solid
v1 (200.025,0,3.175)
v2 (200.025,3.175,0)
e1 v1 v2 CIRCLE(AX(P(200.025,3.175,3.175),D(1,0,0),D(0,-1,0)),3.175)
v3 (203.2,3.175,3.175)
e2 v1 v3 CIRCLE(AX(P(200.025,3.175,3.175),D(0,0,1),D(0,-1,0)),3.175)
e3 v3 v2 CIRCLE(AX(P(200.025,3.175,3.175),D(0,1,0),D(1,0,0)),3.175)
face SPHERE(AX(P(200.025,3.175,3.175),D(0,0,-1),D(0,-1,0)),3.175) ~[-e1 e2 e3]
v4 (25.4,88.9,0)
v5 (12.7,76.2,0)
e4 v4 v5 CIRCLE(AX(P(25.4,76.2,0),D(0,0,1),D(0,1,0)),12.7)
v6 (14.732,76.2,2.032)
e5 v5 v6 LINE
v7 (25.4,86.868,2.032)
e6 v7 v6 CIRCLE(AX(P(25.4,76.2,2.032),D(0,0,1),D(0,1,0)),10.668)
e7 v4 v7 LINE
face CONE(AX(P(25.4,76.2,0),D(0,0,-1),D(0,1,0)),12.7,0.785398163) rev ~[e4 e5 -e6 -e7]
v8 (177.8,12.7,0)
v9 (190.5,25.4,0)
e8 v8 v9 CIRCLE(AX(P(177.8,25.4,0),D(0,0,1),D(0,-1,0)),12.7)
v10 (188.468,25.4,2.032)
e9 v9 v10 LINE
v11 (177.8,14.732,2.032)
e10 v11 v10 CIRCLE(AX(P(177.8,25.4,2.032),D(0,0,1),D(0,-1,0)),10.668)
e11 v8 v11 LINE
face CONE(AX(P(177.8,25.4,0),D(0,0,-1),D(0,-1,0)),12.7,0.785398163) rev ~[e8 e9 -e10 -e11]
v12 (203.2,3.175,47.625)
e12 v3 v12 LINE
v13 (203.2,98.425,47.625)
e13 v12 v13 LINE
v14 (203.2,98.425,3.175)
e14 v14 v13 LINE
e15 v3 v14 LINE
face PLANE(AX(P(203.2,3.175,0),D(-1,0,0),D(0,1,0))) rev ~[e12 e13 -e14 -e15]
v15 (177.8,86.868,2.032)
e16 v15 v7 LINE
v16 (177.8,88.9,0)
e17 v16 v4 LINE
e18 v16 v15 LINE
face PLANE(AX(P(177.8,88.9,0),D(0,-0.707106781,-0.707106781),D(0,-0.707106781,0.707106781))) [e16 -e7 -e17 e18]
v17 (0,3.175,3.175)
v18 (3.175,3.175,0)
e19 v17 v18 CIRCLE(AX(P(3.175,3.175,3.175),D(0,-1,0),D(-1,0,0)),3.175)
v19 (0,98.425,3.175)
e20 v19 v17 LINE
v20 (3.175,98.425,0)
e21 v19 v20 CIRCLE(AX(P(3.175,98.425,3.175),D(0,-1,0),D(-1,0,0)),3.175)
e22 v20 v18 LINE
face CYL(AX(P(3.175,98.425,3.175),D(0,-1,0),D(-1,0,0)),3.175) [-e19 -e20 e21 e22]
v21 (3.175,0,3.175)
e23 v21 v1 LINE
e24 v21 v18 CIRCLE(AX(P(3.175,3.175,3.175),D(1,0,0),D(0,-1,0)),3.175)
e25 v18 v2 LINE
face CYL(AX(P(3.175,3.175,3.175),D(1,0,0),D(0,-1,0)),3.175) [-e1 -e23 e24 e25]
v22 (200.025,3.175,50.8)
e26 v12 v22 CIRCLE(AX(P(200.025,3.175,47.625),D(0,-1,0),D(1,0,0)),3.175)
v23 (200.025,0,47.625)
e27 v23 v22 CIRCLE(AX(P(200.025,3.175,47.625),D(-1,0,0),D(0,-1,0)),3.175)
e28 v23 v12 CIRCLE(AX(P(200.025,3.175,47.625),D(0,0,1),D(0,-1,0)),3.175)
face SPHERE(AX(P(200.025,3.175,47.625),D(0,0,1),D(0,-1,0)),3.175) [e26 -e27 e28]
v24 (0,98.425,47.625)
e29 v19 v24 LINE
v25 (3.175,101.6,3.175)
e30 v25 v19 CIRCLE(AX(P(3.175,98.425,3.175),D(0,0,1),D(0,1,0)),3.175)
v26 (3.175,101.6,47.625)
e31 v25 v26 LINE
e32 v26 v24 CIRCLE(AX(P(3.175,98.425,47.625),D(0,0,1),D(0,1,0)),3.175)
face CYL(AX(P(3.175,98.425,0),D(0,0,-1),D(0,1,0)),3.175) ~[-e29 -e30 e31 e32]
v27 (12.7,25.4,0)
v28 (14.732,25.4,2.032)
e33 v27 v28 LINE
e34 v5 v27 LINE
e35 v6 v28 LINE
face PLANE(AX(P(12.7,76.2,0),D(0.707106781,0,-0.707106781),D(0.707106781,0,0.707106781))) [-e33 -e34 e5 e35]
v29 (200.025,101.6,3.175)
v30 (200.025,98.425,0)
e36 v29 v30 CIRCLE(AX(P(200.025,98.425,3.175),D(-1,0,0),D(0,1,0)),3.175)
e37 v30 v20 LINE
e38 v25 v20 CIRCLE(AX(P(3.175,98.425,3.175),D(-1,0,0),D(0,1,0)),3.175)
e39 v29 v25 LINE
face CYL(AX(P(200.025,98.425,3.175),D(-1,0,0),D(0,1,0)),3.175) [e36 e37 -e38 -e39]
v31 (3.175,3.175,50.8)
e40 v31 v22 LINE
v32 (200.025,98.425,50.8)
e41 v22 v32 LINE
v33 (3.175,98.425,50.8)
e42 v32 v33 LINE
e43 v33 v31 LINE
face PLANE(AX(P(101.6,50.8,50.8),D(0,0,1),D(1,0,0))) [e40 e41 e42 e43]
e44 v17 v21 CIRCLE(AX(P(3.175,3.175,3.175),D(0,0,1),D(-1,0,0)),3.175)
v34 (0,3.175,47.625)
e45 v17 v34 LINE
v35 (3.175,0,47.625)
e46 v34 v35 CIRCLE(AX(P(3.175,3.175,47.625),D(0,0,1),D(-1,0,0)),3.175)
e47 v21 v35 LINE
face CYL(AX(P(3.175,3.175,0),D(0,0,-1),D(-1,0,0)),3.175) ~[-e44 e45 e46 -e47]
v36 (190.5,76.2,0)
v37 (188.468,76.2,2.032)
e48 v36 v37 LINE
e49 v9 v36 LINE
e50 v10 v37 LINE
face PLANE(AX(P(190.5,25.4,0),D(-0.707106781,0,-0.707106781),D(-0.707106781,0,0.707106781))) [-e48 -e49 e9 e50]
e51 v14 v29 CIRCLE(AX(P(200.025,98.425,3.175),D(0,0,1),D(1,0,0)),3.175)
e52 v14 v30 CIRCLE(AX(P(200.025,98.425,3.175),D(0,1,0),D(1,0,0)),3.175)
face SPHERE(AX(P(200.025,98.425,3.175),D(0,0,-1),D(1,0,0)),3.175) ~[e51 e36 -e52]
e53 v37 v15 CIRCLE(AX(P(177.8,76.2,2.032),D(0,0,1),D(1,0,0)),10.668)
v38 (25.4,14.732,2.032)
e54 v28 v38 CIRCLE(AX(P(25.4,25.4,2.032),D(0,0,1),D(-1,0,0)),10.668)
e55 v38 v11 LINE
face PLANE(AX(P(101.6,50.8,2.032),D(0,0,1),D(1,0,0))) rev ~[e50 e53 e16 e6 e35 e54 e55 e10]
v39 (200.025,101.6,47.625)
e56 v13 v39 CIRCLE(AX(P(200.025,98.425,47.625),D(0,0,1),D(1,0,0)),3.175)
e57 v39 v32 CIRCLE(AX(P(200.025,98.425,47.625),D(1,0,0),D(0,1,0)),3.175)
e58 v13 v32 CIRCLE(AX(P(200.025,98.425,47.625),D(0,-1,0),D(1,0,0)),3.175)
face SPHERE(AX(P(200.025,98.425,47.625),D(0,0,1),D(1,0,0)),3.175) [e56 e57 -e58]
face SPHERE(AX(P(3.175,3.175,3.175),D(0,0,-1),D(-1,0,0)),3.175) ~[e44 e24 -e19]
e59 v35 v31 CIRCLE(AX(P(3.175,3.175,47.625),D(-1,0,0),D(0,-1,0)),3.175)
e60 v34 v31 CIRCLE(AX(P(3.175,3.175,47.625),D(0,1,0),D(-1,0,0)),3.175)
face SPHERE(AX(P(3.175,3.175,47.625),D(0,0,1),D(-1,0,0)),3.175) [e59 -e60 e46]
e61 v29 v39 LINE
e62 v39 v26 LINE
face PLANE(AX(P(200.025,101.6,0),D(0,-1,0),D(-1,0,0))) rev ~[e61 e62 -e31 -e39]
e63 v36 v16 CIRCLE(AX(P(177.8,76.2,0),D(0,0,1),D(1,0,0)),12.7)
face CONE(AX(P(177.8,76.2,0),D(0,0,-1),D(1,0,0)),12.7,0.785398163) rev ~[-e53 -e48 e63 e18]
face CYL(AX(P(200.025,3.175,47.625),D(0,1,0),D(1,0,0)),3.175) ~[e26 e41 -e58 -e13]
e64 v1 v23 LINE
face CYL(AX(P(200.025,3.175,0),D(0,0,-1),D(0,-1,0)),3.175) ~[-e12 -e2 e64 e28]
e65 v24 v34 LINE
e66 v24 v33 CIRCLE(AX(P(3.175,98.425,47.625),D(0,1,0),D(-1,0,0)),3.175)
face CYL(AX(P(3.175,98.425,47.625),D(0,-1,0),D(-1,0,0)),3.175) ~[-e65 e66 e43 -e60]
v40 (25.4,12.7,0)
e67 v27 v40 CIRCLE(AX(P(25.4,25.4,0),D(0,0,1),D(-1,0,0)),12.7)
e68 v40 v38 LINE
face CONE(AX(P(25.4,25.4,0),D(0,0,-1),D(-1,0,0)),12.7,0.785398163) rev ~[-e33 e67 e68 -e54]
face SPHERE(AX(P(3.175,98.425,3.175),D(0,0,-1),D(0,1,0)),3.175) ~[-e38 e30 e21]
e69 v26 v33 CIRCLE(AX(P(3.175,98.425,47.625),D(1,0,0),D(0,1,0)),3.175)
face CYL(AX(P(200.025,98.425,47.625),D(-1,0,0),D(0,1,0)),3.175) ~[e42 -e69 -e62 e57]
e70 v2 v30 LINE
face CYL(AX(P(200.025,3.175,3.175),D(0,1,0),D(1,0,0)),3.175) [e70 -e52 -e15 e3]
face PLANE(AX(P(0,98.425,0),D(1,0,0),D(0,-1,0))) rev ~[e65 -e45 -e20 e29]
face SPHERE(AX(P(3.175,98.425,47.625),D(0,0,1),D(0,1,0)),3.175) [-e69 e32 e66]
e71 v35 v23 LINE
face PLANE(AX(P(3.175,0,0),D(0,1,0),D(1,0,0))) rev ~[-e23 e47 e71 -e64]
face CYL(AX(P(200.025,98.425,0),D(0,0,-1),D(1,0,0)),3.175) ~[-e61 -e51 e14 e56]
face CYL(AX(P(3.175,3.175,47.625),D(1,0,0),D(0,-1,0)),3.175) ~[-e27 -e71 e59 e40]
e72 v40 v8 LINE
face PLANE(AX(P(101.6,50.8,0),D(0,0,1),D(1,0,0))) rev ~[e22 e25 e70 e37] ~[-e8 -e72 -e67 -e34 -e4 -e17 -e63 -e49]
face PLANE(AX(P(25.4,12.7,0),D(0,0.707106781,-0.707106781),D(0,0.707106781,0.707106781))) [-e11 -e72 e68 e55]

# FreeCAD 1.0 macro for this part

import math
import FreeCAD as App
import Part
import Sketcher
Q = App.Units.Quantity


def edges_at(feature, points):
    """Names of the edges that pass closest to the given points."""
    edges = feature.Shape.Edges
    near = lambda p: min(range(len(edges)), key=lambda i: edges[i].distToShape(Part.Vertex(*p))[0])
    return sorted({f"Edge{near(p) + 1}" for p in points})

doc = App.newDocument("Part")
body = doc.addObject("PartDesign::Body", "Body")

# Sketch on XY plane
sketch1 = body.newObject("Sketcher::SketchObject", "Sketch")
sketch1.AttachmentSupport = (doc.getObject("XY_Plane"), [""])
sketch1.MapMode = "FlatFace"
sketch1.addGeometry([
    Part.ArcOfCircle(Part.Circle(App.Vector(3.175, 3.175, 0), App.Vector(0, 0, 1), 3.175), math.radians(180), math.radians(270)),  # 0
    Part.LineSegment(App.Vector(3.175, 0, 0), App.Vector(200.025, 0, 0)),  # 1
    Part.ArcOfCircle(Part.Circle(App.Vector(200.025, 3.175, 0), App.Vector(0, 0, 1), 3.175), math.radians(-90), math.radians(0)),  # 2
    Part.LineSegment(App.Vector(203.2, 3.175, 0), App.Vector(203.2, 98.425, 0)),  # 3
    Part.ArcOfCircle(Part.Circle(App.Vector(200.025, 98.425, 0), App.Vector(0, 0, 1), 3.175), math.radians(0), math.radians(90)),  # 4
    Part.LineSegment(App.Vector(200.025, 101.6, 0), App.Vector(3.175, 101.6, 0)),  # 5
    Part.ArcOfCircle(Part.Circle(App.Vector(3.175, 98.425, 0), App.Vector(0, 0, 1), 3.175), math.radians(90), math.radians(180)),  # 6
    Part.LineSegment(App.Vector(0, 98.425, 0), App.Vector(0, 3.175, 0)),  # 7
], False)
sketch1.addConstraint([
    Sketcher.Constraint("Tangent", 0, 2, 1, 1),
    Sketcher.Constraint("Tangent", 1, 2, 2, 1),
    Sketcher.Constraint("Tangent", 2, 2, 3, 1),
    Sketcher.Constraint("Tangent", 3, 2, 4, 1),
    Sketcher.Constraint("Tangent", 4, 2, 5, 1),
    Sketcher.Constraint("Tangent", 5, 2, 6, 1),
    Sketcher.Constraint("Tangent", 6, 2, 7, 1),
    Sketcher.Constraint("Tangent", 7, 2, 0, 1),
    Sketcher.Constraint("Horizontal", 1),
    Sketcher.Constraint("Vertical", 3),
    Sketcher.Constraint("Horizontal", 5),
    Sketcher.Constraint("Vertical", 7),
    Sketcher.Constraint("Equal", 0, 2),
    Sketcher.Constraint("Equal", 2, 4),
    Sketcher.Constraint("Equal", 4, 6),
    Sketcher.Constraint("PointOnObject", 0, 2, -1),
    Sketcher.Constraint("PointOnObject", 6, 2, -2),
    Sketcher.Constraint("DistanceX", -1, 1, 2, 2, Q("8 in")),
    Sketcher.Constraint("DistanceY", -1, 1, 4, 2, Q("4 in")),
    Sketcher.Constraint("Radius", 0, Q("0.125 in")),
])
pad1 = body.newObject("PartDesign::Pad", "Pad")
pad1.Profile = sketch1
pad1.Length = Q("2 in")
doc.recompute()

fillet = body.newObject("PartDesign::Fillet", "Fillet")
fillet.Base = (pad1, edges_at(pad1, [
    (0, 50.8, 0),
    (0.93, 0.93, 0),
    (101.6, 0, 0),
    (202.27, 0.93, 0),
    (203.2, 50.8, 0),
    (202.27, 100.67, 0),
    (101.6, 101.6, 0),
    (0.93, 100.67, 0),
]))
fillet.Radius = Q("0.125 in")
doc.recompute()

fillet2 = body.newObject("PartDesign::Fillet", "Fillet001")
fillet2.Base = (fillet, edges_at(fillet, [
    (0, 50.8, 50.8),
    (0.93, 0.93, 50.8),
    (101.6, 0, 50.8),
    (202.27, 0.93, 50.8),
    (203.2, 50.8, 50.8),
    (202.27, 100.67, 50.8),
    (101.6, 101.6, 50.8),
    (0.93, 100.67, 50.8),
]))
fillet2.Radius = Q("0.125 in")

# Sketch on XY plane
sketch2 = body.newObject("Sketcher::SketchObject", "Sketch001")
sketch2.AttachmentSupport = (doc.getObject("XY_Plane"), [""])
sketch2.MapMode = "FlatFace"
sketch2.addGeometry([
    Part.LineSegment(App.Vector(177.8, 88.9, 0), App.Vector(25.4, 88.9, 0)),  # 0
    Part.ArcOfCircle(Part.Circle(App.Vector(25.4, 76.2, 0), App.Vector(0, 0, 1), 12.7), math.radians(90), math.radians(180)),  # 1
    Part.LineSegment(App.Vector(12.7, 76.2, 0), App.Vector(12.7, 25.4, 0)),  # 2
    Part.ArcOfCircle(Part.Circle(App.Vector(25.4, 25.4, 0), App.Vector(0, 0, 1), 12.7), math.radians(180), math.radians(270)),  # 3
    Part.LineSegment(App.Vector(25.4, 12.7, 0), App.Vector(177.8, 12.7, 0)),  # 4
    Part.ArcOfCircle(Part.Circle(App.Vector(177.8, 25.4, 0), App.Vector(0, 0, 1), 12.7), math.radians(-90), math.radians(0)),  # 5
    Part.LineSegment(App.Vector(190.5, 25.4, 0), App.Vector(190.5, 76.2, 0)),  # 6
    Part.ArcOfCircle(Part.Circle(App.Vector(177.8, 76.2, 0), App.Vector(0, 0, 1), 12.7), math.radians(0), math.radians(90)),  # 7
], False)
sketch2.addConstraint([
    Sketcher.Constraint("Tangent", 0, 2, 1, 1),
    Sketcher.Constraint("Tangent", 1, 2, 2, 1),
    Sketcher.Constraint("Tangent", 2, 2, 3, 1),
    Sketcher.Constraint("Tangent", 3, 2, 4, 1),
    Sketcher.Constraint("Tangent", 4, 2, 5, 1),
    Sketcher.Constraint("Tangent", 5, 2, 6, 1),
    Sketcher.Constraint("Tangent", 6, 2, 7, 1),
    Sketcher.Constraint("Tangent", 7, 2, 0, 1),
    Sketcher.Constraint("Horizontal", 0),
    Sketcher.Constraint("Vertical", 2),
    Sketcher.Constraint("Horizontal", 4),
    Sketcher.Constraint("Vertical", 6),
    Sketcher.Constraint("Equal", 1, 3),
    Sketcher.Constraint("Equal", 3, 5),
    Sketcher.Constraint("Equal", 5, 7),
    Sketcher.Constraint("Radius", 1, Q("0.5 in")),
    Sketcher.Constraint("DistanceX", 0, 2, 0, 1, Q("6 in")),
    Sketcher.Constraint("DistanceY", 2, 2, 2, 1, Q("2 in")),
    Sketcher.Constraint("DistanceX", -1, 1, 1, 3, Q("1 in")),
    Sketcher.Constraint("DistanceY", -1, 1, 1, 3, Q("3 in")),
])
pocket1 = body.newObject("PartDesign::Pocket", "Pocket")
pocket1.Profile = sketch2
pocket1.Length = Q("0.08 in")
pocket1.Reversed = True
pocket1.TaperAngle = -45

doc.recompute()
